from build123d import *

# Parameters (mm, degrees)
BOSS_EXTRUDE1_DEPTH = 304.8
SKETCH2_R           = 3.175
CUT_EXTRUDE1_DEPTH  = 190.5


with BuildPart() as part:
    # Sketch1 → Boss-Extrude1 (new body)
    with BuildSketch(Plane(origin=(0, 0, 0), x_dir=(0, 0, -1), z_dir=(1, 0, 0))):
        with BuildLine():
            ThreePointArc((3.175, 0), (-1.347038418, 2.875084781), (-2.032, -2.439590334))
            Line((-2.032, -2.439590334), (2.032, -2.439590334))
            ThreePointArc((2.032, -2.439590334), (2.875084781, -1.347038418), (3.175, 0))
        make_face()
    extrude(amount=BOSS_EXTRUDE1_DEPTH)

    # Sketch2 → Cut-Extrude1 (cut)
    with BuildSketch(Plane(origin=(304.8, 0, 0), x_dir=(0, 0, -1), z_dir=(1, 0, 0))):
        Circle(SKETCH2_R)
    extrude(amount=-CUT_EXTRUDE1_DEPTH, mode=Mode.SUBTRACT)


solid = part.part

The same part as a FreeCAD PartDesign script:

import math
import FreeCAD as App
import Part
import Sketcher

V = App.Vector
Q = App.Units.Quantity

doc = App.newDocument("Part")
body = doc.addObject("PartDesign::Body", "Body")

# Sketch on YZ plane
sketch1 = doc.addObject("Sketcher::SketchObject", "Sketch")
body.addObject(sketch1)
sketch1.AttachmentSupport = (doc.YZ_Plane, [""])
sketch1.MapMode = "FlatFace"
sketch1.addGeometry([
    Part.ArcOfCircle(Part.Circle(V(0, 0, 0), V(0, 0, 1), 3.2), math.radians(-90), math.radians(140)),
    Part.LineSegment(V(-2.4, 2, 0), V(-2.4, -2, 0)),
    Part.ArcOfCircle(Part.Circle(V(0, 0, 0), V(0, 0, 1), 3.2), math.radians(-140), math.radians(-90)),
], False)
sketch1.addConstraint([
    Sketcher.Constraint("Coincident", 0, 2, 1, 1),
    Sketcher.Constraint("Coincident", 1, 2, 2, 1),
    Sketcher.Constraint("Tangent", 2, 2, 0, 1),
    Sketcher.Constraint("Vertical", 1),
    Sketcher.Constraint("Coincident", 0, 3, -1, 1),
    Sketcher.Constraint("Equal", 0, 2),
    Sketcher.Constraint("PointOnObject", 2, 2, -2),
    Sketcher.Constraint("Radius", 0, Q("0.125 in")),
    Sketcher.Constraint("DistanceY", 1, 2, 1, 1, Q("0.16 in")),
])
pad1 = doc.addObject("PartDesign::Pad", "Pad")
body.addObject(pad1)
pad1.Profile = sketch1
pad1.Length = Q("12 in")

# Sketch on YZ plane
sketch2 = doc.addObject("Sketcher::SketchObject", "Sketch001")
body.addObject(sketch2)
sketch2.AttachmentSupport = (doc.YZ_Plane, [""])
sketch2.MapMode = "FlatFace"
sketch2.AttachmentOffset = App.Placement(V(0, 0, 12 * 25.4), App.Rotation())
sketch2.addGeometry(Part.Circle(V(0, 0, 0), V(0, 0, 1), 3.2), False)
sketch2.addConstraint([
    Sketcher.Constraint("Coincident", 0, 3, -1, 1),
    Sketcher.Constraint("Diameter", 0, Q("0.25 in")),
])
pocket1 = doc.addObject("PartDesign::Pocket", "Pocket")
body.addObject(pocket1)
pocket1.Profile = sketch2
pocket1.Length = Q("7.5 in")

doc.recompute()
